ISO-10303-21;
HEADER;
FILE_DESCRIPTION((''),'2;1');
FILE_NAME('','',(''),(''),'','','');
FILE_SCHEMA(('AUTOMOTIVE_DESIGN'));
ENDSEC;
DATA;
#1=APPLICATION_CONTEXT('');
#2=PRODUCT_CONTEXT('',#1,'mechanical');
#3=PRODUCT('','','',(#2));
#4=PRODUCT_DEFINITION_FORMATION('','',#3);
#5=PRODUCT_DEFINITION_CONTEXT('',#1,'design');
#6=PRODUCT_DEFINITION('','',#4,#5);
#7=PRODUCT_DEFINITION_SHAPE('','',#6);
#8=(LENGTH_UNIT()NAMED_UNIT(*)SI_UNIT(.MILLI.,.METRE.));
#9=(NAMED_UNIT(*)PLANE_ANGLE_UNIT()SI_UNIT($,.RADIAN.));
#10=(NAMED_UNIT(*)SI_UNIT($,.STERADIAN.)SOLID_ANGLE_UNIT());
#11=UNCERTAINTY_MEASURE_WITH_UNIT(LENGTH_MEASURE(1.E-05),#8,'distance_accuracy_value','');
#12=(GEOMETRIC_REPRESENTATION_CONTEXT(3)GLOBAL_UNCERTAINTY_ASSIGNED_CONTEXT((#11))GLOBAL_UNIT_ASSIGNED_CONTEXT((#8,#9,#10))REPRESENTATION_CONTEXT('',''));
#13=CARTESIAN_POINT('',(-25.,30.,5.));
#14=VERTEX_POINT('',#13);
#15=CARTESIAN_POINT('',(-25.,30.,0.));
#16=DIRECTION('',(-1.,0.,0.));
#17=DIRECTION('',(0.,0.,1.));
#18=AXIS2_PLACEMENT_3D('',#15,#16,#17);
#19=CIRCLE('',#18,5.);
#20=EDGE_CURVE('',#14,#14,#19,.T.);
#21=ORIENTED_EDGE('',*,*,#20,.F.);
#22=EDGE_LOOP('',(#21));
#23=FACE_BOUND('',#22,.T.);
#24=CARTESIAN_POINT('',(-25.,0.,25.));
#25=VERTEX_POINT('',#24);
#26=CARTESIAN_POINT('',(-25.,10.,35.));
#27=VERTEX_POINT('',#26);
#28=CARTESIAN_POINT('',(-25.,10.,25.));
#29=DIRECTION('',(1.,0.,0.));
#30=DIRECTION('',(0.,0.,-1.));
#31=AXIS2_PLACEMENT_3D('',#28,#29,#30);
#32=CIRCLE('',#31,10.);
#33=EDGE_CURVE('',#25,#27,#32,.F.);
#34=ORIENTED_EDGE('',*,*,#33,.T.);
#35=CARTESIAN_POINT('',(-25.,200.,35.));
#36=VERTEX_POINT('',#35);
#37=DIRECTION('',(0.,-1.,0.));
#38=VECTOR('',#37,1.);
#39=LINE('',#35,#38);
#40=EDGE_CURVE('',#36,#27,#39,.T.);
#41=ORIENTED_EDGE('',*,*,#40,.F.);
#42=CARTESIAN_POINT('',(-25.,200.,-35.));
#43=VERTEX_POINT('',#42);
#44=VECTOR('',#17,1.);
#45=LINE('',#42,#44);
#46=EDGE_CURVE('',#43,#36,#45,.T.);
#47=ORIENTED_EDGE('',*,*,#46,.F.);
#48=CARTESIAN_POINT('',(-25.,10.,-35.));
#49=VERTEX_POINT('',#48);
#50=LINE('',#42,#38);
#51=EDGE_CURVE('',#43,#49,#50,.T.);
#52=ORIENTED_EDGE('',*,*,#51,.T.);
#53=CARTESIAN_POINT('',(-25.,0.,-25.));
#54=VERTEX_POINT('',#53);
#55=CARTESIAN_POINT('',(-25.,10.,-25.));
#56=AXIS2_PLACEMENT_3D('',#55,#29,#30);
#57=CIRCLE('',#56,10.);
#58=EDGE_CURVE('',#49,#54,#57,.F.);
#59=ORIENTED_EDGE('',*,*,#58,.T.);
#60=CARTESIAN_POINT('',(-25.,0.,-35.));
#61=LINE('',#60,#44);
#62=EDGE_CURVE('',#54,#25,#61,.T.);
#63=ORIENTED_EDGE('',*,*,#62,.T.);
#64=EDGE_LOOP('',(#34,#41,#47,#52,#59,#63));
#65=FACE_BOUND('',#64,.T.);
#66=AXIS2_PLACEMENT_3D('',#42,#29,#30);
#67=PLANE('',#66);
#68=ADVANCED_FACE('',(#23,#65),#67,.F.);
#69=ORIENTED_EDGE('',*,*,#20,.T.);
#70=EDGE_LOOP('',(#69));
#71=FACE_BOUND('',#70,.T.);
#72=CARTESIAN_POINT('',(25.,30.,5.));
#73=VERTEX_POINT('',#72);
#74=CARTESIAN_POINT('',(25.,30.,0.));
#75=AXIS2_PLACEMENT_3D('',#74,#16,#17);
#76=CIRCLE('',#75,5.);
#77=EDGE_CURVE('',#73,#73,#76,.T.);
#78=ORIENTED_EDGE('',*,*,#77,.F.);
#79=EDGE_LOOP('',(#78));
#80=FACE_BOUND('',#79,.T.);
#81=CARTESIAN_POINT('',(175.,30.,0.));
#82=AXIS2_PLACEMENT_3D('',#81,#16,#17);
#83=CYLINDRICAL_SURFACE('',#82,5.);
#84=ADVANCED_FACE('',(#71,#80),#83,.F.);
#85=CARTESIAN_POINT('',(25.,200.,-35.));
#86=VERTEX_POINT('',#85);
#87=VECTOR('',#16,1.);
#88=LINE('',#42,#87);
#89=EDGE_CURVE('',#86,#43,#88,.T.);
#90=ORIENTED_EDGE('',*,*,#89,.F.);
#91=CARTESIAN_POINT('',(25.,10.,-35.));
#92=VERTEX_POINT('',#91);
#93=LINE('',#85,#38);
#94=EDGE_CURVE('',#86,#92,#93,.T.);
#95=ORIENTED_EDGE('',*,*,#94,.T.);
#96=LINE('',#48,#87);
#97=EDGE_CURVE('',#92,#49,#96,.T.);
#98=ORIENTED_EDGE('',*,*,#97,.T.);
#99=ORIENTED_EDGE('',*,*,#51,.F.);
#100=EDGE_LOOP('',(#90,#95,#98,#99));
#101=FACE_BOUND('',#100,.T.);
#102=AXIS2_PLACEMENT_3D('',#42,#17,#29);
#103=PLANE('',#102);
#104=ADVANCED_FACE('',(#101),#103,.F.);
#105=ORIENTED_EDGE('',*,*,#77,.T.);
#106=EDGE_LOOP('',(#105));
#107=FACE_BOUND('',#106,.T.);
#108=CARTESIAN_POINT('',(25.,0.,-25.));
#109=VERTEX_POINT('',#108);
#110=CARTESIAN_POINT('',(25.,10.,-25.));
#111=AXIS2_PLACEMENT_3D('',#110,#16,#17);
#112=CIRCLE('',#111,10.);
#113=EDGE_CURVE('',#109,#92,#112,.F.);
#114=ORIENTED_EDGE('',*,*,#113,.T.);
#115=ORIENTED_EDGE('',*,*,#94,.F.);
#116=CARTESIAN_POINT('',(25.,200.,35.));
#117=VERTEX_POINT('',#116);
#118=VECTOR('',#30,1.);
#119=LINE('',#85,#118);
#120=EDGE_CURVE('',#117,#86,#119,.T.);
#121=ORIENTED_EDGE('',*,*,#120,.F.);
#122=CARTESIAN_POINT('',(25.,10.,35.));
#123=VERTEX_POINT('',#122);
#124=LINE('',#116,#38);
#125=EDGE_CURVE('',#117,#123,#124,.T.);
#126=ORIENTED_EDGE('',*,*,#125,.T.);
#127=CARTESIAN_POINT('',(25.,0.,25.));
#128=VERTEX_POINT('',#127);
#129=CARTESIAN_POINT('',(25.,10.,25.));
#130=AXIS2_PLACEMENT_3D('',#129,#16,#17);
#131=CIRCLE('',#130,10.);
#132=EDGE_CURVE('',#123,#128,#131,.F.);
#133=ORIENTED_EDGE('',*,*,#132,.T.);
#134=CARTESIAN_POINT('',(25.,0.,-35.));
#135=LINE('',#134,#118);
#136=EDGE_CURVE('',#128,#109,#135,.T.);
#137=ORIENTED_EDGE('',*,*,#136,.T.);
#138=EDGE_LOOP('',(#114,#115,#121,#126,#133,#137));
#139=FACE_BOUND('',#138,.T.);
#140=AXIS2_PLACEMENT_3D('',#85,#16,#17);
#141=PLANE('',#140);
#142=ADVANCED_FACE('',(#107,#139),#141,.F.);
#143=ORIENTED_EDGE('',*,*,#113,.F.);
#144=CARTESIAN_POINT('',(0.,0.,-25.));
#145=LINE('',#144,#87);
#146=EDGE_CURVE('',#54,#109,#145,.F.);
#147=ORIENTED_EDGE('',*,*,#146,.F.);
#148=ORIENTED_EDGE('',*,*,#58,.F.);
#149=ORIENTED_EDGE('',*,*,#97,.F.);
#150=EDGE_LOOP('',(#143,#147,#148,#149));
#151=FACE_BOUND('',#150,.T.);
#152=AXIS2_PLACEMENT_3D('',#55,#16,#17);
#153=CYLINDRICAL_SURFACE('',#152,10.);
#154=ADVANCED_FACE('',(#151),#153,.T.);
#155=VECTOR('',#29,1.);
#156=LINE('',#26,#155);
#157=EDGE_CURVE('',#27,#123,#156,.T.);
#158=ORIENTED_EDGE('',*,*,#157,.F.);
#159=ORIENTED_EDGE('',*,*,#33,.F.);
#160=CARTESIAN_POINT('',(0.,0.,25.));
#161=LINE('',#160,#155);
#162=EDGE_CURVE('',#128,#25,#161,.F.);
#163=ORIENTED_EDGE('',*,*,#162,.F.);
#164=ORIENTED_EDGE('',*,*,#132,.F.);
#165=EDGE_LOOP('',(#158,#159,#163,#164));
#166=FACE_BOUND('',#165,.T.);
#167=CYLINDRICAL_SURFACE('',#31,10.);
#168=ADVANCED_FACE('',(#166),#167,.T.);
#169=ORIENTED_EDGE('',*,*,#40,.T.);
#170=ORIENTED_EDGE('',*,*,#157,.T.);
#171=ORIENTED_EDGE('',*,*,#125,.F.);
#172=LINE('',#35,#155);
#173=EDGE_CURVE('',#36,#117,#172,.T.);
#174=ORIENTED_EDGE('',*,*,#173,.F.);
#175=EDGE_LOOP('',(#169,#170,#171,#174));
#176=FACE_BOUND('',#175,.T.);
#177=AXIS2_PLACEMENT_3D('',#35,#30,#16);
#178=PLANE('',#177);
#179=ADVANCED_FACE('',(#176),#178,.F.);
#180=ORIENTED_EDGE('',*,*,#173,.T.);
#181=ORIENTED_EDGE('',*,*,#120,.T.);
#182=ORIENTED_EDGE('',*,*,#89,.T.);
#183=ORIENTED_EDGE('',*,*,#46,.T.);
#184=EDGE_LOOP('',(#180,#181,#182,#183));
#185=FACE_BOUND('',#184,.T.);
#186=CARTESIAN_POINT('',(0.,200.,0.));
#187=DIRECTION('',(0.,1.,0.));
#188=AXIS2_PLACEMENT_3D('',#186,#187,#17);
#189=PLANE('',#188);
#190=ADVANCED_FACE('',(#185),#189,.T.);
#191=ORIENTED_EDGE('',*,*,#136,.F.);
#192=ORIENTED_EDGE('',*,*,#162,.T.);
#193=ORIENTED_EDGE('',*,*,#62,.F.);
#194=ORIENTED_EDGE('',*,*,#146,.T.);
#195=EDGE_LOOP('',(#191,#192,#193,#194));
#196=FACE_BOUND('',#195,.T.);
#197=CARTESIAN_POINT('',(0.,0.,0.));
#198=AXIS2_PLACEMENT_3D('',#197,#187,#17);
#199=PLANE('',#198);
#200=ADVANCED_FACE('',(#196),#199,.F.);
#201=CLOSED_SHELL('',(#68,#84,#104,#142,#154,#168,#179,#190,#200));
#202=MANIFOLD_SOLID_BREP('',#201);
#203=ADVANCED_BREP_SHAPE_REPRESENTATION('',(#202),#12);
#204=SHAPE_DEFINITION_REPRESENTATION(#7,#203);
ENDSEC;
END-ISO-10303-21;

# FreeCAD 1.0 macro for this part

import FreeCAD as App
import Part
import Sketcher

V = App.Vector
Q = App.Units.Quantity


def edges_at(feature, points):
    """Names of the edges that pass closest to the given points."""
    edges = feature.Shape.Edges
    near = lambda p: min(range(len(edges)), key=lambda i: edges[i].distToShape(Part.Vertex(*p))[0])
    return sorted({f"Edge{near(p) + 1}" for p in points})

doc = App.newDocument("Part")
body = doc.addObject("PartDesign::Body", "Body")

# Sketch on XZ plane
sketch1 = body.newObject("Sketcher::SketchObject", "Sketch")
sketch1.AttachmentSupport = (doc.getObject("XZ_Plane"), [""])
sketch1.MapMode = "FlatFace"
sketch1.addGeometry([
    Part.LineSegment(V(-25, -35, 0), V(-25, 35, 0)),
    Part.LineSegment(V(-25, 35, 0), V(25, 35, 0)),
    Part.LineSegment(V(25, 35, 0), V(25, -35, 0)),
    Part.LineSegment(V(25, -35, 0), V(-25, -35, 0)),
], False)
sketch1.addConstraint([
    Sketcher.Constraint("Coincident", 0, 2, 1, 1),
    Sketcher.Constraint("Coincident", 1, 2, 2, 1),
    Sketcher.Constraint("Coincident", 2, 2, 3, 1),
    Sketcher.Constraint("Coincident", 3, 2, 0, 1),
    Sketcher.Constraint("Vertical", 0),
    Sketcher.Constraint("Horizontal", 1),
    Sketcher.Constraint("Vertical", 2),
    Sketcher.Constraint("Horizontal", 3),
    Sketcher.Constraint("Symmetric", 0, 2, 2, 2, -1, 1),
    Sketcher.Constraint("DistanceX", 1, 1, 1, 2, Q("50 mm")),
    Sketcher.Constraint("DistanceY", 0, 1, 0, 2, Q("70 mm")),
])
pad1 = body.newObject("PartDesign::Pad", "Pad")
pad1.Profile = sketch1
pad1.Length = 200
pad1.Reversed = True

# Sketch on YZ plane
sketch2 = body.newObject("Sketcher::SketchObject", "Sketch001")
sketch2.AttachmentSupport = (doc.getObject("YZ_Plane"), [""])
sketch2.MapMode = "FlatFace"
sketch2.AttachmentOffset = App.Placement(V(0, 0, -25), App.Rotation())
sketch2.addGeometry(Part.Circle(V(30, 0, 0), V(0, 0, 1), 5), False)
sketch2.addConstraint([
    Sketcher.Constraint("PointOnObject", 0, 3, -1),
    Sketcher.Constraint("Diameter", 0, Q("10 mm")),
    Sketcher.Constraint("DistanceX", -1, 1, 0, 3, Q("30 mm")),
])
pocket1 = body.newObject("PartDesign::Pocket", "Pocket")
pocket1.Profile = sketch2
pocket1.Length = 200
pocket1.Reversed = True
doc.recompute()

fillet = body.newObject("PartDesign::Fillet", "Fillet")
fillet.Base = (pocket1, edges_at(pocket1, [(0, 0, 35), (0, 0, -35)]))
fillet.Radius = 10

doc.recompute()
